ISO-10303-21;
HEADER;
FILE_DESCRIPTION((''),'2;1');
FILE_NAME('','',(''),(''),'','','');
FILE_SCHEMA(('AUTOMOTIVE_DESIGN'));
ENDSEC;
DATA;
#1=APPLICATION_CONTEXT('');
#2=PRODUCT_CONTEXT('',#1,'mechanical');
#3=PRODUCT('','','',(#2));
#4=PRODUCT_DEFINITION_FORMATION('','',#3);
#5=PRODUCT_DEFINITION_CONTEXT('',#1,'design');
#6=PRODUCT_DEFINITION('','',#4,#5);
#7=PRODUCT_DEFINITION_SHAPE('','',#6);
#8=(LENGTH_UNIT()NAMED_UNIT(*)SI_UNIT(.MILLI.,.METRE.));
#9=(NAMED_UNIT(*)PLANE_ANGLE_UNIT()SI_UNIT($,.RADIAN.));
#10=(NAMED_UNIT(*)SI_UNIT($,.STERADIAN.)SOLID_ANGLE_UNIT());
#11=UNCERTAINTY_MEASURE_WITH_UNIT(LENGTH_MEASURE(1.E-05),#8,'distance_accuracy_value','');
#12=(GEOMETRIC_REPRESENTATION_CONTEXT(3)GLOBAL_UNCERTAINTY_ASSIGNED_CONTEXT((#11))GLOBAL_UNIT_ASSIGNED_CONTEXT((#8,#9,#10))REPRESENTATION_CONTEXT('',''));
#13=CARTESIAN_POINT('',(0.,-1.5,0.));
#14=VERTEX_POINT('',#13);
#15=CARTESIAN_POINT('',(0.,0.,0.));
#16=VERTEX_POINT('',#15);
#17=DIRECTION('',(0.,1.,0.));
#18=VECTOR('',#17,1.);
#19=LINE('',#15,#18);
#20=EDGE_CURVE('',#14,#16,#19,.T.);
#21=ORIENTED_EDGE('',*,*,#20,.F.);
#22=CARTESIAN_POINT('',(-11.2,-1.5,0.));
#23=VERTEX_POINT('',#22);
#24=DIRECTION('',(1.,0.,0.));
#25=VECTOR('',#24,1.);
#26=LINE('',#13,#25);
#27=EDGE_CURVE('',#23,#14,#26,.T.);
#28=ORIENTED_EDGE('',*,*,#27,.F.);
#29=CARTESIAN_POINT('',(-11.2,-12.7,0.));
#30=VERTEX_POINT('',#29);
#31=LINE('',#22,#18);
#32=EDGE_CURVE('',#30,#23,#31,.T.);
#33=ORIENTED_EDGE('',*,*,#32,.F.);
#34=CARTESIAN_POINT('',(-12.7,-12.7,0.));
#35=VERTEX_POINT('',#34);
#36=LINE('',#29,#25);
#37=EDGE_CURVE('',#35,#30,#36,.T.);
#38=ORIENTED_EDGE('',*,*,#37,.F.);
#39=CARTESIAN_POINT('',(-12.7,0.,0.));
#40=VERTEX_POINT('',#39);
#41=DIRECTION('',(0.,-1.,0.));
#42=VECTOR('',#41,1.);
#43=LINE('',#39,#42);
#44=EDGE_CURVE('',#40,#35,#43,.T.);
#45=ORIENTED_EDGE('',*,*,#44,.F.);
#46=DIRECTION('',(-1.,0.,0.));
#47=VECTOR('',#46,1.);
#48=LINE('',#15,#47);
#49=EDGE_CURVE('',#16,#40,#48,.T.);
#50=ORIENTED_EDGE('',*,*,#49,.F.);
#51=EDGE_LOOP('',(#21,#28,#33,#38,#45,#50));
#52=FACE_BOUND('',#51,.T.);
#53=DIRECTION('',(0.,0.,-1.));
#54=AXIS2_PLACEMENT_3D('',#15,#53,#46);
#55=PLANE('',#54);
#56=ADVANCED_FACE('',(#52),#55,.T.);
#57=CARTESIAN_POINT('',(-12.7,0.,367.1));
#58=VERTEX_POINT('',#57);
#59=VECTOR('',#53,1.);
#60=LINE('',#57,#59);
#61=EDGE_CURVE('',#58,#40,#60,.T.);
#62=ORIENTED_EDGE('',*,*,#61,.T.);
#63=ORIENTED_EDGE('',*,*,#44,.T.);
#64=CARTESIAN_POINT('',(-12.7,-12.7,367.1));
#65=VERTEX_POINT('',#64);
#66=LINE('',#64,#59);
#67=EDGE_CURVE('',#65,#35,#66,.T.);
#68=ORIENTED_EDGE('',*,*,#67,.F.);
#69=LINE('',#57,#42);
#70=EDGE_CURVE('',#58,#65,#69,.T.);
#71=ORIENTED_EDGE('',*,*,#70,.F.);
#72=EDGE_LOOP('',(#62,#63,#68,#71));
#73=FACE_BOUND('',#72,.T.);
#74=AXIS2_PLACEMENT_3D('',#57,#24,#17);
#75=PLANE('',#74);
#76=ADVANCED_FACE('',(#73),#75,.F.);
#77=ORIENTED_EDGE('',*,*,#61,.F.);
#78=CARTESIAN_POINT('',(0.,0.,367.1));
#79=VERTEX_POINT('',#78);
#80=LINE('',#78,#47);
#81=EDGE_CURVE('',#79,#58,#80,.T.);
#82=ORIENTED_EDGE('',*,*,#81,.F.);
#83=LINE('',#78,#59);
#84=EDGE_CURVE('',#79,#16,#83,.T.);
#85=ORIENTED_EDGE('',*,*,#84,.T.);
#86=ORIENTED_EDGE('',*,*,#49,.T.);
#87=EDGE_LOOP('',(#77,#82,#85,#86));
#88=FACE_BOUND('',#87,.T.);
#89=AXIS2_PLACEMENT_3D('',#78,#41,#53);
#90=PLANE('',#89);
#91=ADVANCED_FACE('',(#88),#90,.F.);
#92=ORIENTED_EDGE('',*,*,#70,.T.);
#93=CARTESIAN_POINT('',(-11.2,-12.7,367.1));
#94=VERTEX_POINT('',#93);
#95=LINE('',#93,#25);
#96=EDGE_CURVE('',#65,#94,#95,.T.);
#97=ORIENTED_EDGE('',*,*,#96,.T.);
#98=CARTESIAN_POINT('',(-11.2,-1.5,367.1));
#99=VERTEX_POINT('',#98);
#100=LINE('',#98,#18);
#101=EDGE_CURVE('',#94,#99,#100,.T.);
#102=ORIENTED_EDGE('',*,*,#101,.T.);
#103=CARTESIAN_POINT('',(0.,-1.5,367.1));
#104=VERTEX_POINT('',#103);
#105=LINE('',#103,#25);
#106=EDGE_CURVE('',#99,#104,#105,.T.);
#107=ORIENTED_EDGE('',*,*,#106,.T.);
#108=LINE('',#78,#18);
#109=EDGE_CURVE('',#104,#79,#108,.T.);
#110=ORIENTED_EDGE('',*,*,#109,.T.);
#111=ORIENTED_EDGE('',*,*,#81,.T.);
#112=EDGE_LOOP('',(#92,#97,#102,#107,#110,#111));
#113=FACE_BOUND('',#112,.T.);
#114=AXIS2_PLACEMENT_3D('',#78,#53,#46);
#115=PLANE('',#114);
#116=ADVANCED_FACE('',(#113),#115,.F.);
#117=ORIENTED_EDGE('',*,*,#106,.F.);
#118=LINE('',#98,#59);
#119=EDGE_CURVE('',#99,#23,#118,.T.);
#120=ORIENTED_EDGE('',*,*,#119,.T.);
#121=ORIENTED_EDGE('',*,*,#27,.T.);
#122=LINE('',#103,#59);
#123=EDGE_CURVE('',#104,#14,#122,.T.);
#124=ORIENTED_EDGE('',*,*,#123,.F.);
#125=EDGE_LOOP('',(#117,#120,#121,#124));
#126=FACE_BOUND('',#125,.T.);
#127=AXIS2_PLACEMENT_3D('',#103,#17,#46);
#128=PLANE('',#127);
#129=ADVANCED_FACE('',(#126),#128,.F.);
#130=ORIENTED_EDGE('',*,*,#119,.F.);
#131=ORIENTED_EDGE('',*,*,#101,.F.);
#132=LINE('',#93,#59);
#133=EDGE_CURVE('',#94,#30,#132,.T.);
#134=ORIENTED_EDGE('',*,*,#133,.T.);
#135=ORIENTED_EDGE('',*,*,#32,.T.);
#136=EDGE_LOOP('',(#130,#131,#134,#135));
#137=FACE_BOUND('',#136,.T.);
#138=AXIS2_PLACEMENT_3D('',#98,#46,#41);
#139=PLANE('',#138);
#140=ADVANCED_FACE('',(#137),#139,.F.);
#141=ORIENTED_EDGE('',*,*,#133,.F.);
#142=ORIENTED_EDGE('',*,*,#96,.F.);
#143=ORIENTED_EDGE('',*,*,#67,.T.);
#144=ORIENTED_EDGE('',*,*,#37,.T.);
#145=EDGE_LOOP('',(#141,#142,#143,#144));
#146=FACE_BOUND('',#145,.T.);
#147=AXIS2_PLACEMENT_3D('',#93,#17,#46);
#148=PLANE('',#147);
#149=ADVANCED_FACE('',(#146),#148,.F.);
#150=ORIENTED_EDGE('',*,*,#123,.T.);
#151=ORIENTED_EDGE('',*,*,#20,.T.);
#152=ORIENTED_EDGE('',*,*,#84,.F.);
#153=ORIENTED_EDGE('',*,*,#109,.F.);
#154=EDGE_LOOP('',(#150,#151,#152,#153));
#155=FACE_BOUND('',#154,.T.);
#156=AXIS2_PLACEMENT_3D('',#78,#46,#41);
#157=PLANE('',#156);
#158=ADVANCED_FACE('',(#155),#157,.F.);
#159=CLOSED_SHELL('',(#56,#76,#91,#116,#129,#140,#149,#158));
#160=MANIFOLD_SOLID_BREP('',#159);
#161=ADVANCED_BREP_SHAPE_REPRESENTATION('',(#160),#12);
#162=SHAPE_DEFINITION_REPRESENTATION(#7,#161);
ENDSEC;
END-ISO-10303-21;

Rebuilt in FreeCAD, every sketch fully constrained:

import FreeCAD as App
import Part
import Sketcher

V = App.Vector


def add_polygon(sketch, points):
    """Adds a closed chain of lines whose ends are joined by coincident constraints."""
    first, n = sketch.GeometryCount, len(points)
    for a, b in zip(points, points[1:] + points[:1]):
        sketch.addGeometry(Part.LineSegment(App.Vector(*a, 0), App.Vector(*b, 0)), False)
    for i in range(n):
        sketch.addConstraint(Sketcher.Constraint("Coincident", first + i, 2, first + (i + 1) % n, 1))

doc = App.newDocument("Part")
params = doc.addObject("Spreadsheet::Sheet", "Params")
for row, (alias, value) in enumerate([
    ("sketch1_width", "11.2 mm"),
    ("sketch1_width2", "12.7 mm"),
    ("pad1_length", "367.1 mm"),
], start=1):
    params.set(f"A{row}", alias)
    params.set(f"B{row}", "=" + value)
    params.setAlias(f"B{row}", alias)

body = doc.addObject("PartDesign::Body", "Body")

sketch1 = doc.addObject("Sketcher::SketchObject", "Sketch")
body.addObject(sketch1)
sketch1.AttachmentSupport = (doc.XY_Plane, [""])
sketch1.MapMode = "FlatFace"
add_polygon(sketch1, [(-11.2, -1.5), (0, -1.5), (0, 0), (-12.7, 0), (-12.7, -12.7), (-11.2, -12.7)])
sketch1.addConstraint([
    Sketcher.Constraint("Horizontal", 0),
    Sketcher.Constraint("Vertical", 1),
    Sketcher.Constraint("Horizontal", 2),
    Sketcher.Constraint("Vertical", 3),
    Sketcher.Constraint("Horizontal", 4),
    Sketcher.Constraint("Vertical", 5),
    Sketcher.Constraint("Coincident", 1, 2, -1, 1),
    Sketcher.Constraint("Equal", 4, 1),
    Sketcher.Constraint("Equal", 2, 3),
    Sketcher.Constraint("DistanceX", 0, 1, 0, 2, 11.2),
    Sketcher.Constraint("DistanceX", 2, 2, 2, 1, 12.7),
])
sketch1.setExpression("Constraints[15]", "Params.sketch1_width")
sketch1.setExpression("Constraints[16]", "Params.sketch1_width2")
pad1 = doc.addObject("PartDesign::Pad", "Pad")
body.addObject(pad1)
pad1.Profile = sketch1
pad1.setExpression("Length", "Params.pad1_length")

doc.recompute()
